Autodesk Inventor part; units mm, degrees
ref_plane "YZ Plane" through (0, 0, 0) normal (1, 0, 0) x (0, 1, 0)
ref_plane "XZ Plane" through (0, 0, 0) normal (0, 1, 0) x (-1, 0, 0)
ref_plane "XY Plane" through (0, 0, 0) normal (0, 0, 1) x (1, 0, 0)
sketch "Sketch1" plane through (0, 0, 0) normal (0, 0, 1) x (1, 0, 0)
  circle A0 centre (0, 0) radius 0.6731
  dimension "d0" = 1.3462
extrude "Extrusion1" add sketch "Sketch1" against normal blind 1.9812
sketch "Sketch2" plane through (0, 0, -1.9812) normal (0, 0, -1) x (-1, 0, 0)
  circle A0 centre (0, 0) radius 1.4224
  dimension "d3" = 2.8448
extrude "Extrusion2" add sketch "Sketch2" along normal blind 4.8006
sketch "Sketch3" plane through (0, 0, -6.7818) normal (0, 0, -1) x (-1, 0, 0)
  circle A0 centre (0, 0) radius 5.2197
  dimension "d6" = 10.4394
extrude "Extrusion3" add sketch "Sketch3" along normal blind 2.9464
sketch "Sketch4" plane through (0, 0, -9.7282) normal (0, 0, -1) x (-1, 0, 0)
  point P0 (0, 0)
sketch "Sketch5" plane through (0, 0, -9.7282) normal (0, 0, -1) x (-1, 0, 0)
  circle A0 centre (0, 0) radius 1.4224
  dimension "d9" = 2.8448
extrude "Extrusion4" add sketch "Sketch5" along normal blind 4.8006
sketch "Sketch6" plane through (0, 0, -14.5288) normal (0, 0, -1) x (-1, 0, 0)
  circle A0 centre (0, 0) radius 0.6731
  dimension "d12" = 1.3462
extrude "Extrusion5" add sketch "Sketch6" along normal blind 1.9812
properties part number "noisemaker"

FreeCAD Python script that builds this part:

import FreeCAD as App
import Part
import Sketcher

V = App.Vector
Q = App.Units.Quantity

doc = App.newDocument("Part")
body = doc.addObject("PartDesign::Body", "Body")

sketch1 = body.newObject("Sketcher::SketchObject", "Sketch")
sketch1.AttachmentSupport = (doc.getObject("XY_Plane"), [""])
sketch1.MapMode = "FlatFace"
sketch1.addGeometry(Part.Circle(V(0, 0, 0), V(0, 0, 1), 0.6731), False)
sketch1.addConstraint(Sketcher.Constraint("Coincident", 0, 3, -1, 1))
sketch1.addConstraint(Sketcher.Constraint("Diameter", 0, Q("0.053 in")))
pad1 = body.newObject("PartDesign::Pad", "Pad")
pad1.Profile = sketch1
pad1.Length = Q("0.078 in")
pad1.Reversed = True

sketch2 = body.newObject("Sketcher::SketchObject", "Sketch001")
sketch2.AttachmentSupport = (doc.getObject("XY_Plane"), [""])
sketch2.MapMode = "FlatFace"
sketch2.AttachmentOffset = App.Placement(V(0, 0, -0.078 * 25.4), App.Rotation())
sketch2.addGeometry(Part.Circle(V(0, 0, 0), V(0, 0, 1), 1.4224), False)
sketch2.addConstraint(Sketcher.Constraint("Coincident", 0, 3, -1, 1))
sketch2.addConstraint(Sketcher.Constraint("Diameter", 0, Q("0.112 in")))
pad2 = body.newObject("PartDesign::Pad", "Pad001")
pad2.Profile = sketch2
pad2.Length = Q("0.189 in")
pad2.Reversed = True

sketch3 = body.newObject("Sketcher::SketchObject", "Sketch002")
sketch3.AttachmentSupport = (doc.getObject("XY_Plane"), [""])
sketch3.MapMode = "FlatFace"
sketch3.AttachmentOffset = App.Placement(V(0, 0, -0.267 * 25.4), App.Rotation())
sketch3.addGeometry(Part.Circle(V(0, 0, 0), V(0, 0, 1), 5.2197), False)
sketch3.addConstraint(Sketcher.Constraint("Coincident", 0, 3, -1, 1))
sketch3.addConstraint(Sketcher.Constraint("Diameter", 0, Q("0.411 in")))
pad3 = body.newObject("PartDesign::Pad", "Pad002")
pad3.Profile = sketch3
pad3.Length = Q("0.116 in")
pad3.Reversed = True

sketch4 = body.newObject("Sketcher::SketchObject", "Sketch003")
sketch4.AttachmentSupport = (doc.getObject("XY_Plane"), [""])
sketch4.MapMode = "FlatFace"
sketch4.AttachmentOffset = App.Placement(V(0, 0, -0.383 * 25.4), App.Rotation())
sketch4.addGeometry(Part.Circle(V(0, 0, 0), V(0, 0, 1), 1.4224), False)
sketch4.addConstraint(Sketcher.Constraint("Coincident", 0, 3, -1, 1))
sketch4.addConstraint(Sketcher.Constraint("Diameter", 0, Q("0.112 in")))
pad4 = body.newObject("PartDesign::Pad", "Pad003")
pad4.Profile = sketch4
pad4.Length = Q("0.189 in")
pad4.Reversed = True

sketch5 = body.newObject("Sketcher::SketchObject", "Sketch004")
sketch5.AttachmentSupport = (doc.getObject("XY_Plane"), [""])
sketch5.MapMode = "FlatFace"
sketch5.AttachmentOffset = App.Placement(V(0, 0, -0.572 * 25.4), App.Rotation())
sketch5.addGeometry(Part.Circle(V(0, 0, 0), V(0, 0, 1), 0.6731), False)
sketch5.addConstraint(Sketcher.Constraint("Coincident", 0, 3, -1, 1))
sketch5.addConstraint(Sketcher.Constraint("Diameter", 0, Q("0.053 in")))
pad5 = body.newObject("PartDesign::Pad", "Pad004")
pad5.Profile = sketch5
pad5.Length = Q("0.078 in")
pad5.Reversed = True

doc.recompute()
